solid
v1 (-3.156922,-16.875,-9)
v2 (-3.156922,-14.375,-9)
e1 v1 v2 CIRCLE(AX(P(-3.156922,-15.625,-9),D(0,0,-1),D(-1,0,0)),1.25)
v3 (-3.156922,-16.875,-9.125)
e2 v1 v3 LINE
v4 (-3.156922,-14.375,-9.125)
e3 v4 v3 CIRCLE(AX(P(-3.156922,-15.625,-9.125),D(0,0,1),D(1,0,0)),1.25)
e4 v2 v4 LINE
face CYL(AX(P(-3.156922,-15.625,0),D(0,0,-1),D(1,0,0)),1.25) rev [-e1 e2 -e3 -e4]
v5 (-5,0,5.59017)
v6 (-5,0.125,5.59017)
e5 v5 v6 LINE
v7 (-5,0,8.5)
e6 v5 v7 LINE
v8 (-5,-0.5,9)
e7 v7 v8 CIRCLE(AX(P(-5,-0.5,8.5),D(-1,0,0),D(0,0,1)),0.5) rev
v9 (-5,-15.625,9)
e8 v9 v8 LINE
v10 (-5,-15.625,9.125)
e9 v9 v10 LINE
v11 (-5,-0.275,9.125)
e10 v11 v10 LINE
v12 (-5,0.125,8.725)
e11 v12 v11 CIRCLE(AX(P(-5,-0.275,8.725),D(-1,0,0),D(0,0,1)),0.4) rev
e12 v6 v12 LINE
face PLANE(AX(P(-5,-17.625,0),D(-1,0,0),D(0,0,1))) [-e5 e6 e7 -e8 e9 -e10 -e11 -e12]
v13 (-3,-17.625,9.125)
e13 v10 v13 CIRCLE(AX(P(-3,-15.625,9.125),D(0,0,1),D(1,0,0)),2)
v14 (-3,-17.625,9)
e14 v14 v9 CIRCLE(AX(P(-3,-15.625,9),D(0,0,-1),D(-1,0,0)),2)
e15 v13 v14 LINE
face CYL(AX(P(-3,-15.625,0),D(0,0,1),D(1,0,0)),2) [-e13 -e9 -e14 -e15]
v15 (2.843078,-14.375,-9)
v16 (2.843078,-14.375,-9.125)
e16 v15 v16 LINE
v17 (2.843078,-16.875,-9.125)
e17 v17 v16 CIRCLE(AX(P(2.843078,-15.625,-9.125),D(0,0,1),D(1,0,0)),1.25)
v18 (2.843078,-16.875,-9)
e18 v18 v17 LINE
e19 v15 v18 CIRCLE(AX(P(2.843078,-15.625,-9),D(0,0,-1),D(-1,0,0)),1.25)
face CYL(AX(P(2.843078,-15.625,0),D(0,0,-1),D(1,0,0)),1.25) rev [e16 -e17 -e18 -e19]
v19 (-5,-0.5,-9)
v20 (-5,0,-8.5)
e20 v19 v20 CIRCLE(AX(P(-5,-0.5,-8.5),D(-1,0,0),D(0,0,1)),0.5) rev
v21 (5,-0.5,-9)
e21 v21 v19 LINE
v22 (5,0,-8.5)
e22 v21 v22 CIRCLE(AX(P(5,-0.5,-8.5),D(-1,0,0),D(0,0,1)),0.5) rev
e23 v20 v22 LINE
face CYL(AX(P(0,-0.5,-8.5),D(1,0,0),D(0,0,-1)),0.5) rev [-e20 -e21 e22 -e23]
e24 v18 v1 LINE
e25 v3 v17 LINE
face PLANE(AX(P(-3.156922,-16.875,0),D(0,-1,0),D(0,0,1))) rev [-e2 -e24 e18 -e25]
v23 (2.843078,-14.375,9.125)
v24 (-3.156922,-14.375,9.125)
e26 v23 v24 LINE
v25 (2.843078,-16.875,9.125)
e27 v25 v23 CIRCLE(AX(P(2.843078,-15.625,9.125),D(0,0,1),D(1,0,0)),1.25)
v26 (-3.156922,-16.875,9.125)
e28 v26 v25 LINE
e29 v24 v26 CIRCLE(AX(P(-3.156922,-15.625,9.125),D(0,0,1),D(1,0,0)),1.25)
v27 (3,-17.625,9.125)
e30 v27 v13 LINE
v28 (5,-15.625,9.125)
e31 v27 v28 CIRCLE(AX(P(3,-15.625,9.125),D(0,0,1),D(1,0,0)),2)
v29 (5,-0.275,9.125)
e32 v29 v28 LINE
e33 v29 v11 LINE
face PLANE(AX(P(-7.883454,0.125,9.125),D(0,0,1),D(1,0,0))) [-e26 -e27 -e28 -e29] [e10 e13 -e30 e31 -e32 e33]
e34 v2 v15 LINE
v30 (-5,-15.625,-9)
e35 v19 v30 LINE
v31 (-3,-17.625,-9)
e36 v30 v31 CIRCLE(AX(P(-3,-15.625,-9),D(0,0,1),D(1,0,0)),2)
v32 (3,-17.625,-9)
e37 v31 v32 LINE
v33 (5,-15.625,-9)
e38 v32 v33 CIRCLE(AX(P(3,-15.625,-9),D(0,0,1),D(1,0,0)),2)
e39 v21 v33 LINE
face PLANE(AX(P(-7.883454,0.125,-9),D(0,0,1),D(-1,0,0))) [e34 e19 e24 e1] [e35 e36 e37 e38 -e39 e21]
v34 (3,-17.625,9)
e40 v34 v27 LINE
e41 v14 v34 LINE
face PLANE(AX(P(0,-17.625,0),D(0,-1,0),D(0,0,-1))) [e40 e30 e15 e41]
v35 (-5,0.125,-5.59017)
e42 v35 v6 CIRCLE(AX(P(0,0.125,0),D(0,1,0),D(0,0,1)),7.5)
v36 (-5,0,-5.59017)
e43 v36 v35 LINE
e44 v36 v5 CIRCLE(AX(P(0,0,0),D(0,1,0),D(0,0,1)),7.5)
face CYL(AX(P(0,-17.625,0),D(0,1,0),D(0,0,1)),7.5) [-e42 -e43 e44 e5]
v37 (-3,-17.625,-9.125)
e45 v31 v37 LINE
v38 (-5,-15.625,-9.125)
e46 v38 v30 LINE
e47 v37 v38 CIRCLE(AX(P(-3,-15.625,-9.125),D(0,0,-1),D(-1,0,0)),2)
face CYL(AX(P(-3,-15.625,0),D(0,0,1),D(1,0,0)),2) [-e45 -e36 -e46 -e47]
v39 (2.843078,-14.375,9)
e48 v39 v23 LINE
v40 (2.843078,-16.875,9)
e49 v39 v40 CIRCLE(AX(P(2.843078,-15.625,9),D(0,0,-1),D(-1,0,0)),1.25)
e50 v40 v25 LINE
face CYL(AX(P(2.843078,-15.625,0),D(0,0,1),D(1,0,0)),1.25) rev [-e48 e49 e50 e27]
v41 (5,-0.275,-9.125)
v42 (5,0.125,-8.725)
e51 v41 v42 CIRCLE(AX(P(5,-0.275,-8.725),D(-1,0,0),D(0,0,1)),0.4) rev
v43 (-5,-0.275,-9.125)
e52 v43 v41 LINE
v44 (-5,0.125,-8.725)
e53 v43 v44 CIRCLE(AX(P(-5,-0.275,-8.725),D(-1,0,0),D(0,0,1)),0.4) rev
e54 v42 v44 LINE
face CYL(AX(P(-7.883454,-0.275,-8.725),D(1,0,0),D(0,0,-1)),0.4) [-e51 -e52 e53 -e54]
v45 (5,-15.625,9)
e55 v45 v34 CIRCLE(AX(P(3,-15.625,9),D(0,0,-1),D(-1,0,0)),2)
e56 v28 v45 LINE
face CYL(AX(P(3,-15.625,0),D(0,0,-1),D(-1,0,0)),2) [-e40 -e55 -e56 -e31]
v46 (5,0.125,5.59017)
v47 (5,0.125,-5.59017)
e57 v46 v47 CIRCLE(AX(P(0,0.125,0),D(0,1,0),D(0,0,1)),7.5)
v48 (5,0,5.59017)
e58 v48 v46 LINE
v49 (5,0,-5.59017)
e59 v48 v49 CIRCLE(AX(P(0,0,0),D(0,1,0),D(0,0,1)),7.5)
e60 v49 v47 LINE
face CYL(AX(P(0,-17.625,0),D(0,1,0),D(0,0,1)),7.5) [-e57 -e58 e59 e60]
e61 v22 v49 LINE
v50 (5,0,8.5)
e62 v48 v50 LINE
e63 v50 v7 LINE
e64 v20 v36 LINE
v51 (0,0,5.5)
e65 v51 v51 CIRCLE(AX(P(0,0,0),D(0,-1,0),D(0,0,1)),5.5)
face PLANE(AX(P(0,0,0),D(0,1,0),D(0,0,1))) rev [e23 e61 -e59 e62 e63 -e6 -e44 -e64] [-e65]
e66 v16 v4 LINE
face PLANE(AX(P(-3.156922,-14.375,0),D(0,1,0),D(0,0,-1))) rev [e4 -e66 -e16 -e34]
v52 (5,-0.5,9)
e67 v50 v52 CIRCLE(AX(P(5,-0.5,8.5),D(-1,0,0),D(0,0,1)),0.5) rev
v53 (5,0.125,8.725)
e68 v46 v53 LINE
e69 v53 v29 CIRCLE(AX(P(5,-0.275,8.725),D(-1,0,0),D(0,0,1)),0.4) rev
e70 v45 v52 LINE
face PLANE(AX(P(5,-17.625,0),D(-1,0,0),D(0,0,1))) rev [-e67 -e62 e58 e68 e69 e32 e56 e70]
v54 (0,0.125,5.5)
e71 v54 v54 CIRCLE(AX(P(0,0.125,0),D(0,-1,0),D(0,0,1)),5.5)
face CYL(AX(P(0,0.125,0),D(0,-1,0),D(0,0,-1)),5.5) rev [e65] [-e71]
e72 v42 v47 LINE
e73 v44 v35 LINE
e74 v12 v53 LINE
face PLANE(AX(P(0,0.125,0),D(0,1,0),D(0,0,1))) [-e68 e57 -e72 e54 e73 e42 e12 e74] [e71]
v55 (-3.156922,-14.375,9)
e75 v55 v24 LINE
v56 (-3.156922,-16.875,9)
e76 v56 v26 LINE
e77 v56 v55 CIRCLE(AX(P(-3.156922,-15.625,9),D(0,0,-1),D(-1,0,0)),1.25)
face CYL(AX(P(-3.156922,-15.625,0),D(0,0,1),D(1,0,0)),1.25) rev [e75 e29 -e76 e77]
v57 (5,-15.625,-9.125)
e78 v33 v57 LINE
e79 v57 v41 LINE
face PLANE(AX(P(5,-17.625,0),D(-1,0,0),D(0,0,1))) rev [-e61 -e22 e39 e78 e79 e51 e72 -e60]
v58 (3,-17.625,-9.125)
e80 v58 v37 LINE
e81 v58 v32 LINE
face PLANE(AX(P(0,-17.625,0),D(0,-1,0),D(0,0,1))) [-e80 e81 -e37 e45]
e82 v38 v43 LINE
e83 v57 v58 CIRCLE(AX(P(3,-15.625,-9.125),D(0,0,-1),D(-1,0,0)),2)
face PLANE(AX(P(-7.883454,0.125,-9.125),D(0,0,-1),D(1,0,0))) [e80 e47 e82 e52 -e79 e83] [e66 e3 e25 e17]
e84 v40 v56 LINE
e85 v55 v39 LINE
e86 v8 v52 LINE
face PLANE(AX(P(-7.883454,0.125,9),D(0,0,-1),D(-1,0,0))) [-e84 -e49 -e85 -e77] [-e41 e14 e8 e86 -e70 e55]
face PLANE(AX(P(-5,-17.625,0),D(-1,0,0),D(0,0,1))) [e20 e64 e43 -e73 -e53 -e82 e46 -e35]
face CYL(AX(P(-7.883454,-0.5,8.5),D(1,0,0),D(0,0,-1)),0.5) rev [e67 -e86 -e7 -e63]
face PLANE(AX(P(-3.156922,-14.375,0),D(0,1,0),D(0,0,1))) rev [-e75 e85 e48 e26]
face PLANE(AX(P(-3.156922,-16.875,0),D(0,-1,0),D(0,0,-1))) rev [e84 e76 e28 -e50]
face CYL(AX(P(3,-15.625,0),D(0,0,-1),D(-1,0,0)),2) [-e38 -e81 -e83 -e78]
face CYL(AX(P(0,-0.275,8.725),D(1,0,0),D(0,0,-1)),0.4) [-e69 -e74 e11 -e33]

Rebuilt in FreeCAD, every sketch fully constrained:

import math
import FreeCAD as App
import Part
import Sketcher
Q = App.Units.Quantity


def edges_at(feature, points):
    """Names of the edges that pass closest to the given points."""
    edges = feature.Shape.Edges
    near = lambda p: min(range(len(edges)), key=lambda i: edges[i].distToShape(Part.Vertex(*p))[0])
    return sorted({f"Edge{near(p) + 1}" for p in points})


def add_polygon(sketch, points):
    """Adds a closed chain of lines whose ends are joined by coincident constraints."""
    first, n = sketch.GeometryCount, len(points)
    for a, b in zip(points, points[1:] + points[:1]):
        sketch.addGeometry(Part.LineSegment(App.Vector(*a, 0), App.Vector(*b, 0)), False)
    for i in range(n):
        sketch.addConstraint(Sketcher.Constraint("Coincident", first + i, 2, first + (i + 1) % n, 1))

doc = App.newDocument("Part")
params = doc.addObject("Spreadsheet::Sheet", "Params")
for row, (alias, value) in enumerate([
    ("sketch1_radius", "5.5 mm"),
    ("sketch1_height", "9 mm"),
    ("pad1_length", "0.125 mm"),
    ("sketch2_width", "15.25 mm"),
    ("pad2_length", "15.766908 mm"),
    ("pad3_length", "2.5 mm"),
    ("sketch4_width", "6 mm"),
    ("sketch4_radius", "1.25 mm"),
    ("pocket1_length", "2.5 mm"),
    ("fillet_radius", "0.4 mm"),
    ("fillet2_radius", "0.5 mm"),
    ("fillet3_radius", "0.5 mm"),
    ("fillet4_radius", "2 mm"),
    ("fillet5_radius", "2 mm"),
    ("fillet6_radius", "0.4 mm"),
    ("sketch5_radius", "7.5 mm"),
    ("pocket2_length", "17.75 mm"),
    ("fillet7_radius", "2 mm"),
], start=1):
    params.set(f"A{row}", alias)
    params.set(f"B{row}", "=" + value)
    params.setAlias(f"B{row}", alias)

body = doc.addObject("PartDesign::Body", "Body")

sketch1 = body.newObject("Sketcher::SketchObject", "Sketch")
sketch1.AttachmentSupport = (doc.getObject("XZ_Plane"), [""])
sketch1.MapMode = "FlatFace"
sketch1.addGeometry([
    Part.LineSegment(App.Vector(-5.5, 0, 0), App.Vector(-7.9, 0, 0)),
    Part.LineSegment(App.Vector(-7.9, 0, 0), App.Vector(-7.9, 9, 0)),
    Part.LineSegment(App.Vector(-7.9, 9, 0), App.Vector(7.9, 9, 0)),
    Part.LineSegment(App.Vector(7.9, 9, 0), App.Vector(7.9, 0, 0)),
    Part.LineSegment(App.Vector(7.9, 0, 0), App.Vector(5.5, 0, 0)),
    Part.ArcOfCircle(Part.Circle(App.Vector(0, 0, 0), App.Vector(0, 0, 1), 5.5), math.radians(0), math.radians(180)),
], False)
sketch1.addConstraint([
    Sketcher.Constraint("Coincident", 0, 2, 1, 1),
    Sketcher.Constraint("Coincident", 1, 2, 2, 1),
    Sketcher.Constraint("Coincident", 2, 2, 3, 1),
    Sketcher.Constraint("Coincident", 3, 2, 4, 1),
    Sketcher.Constraint("Coincident", 4, 2, 5, 1),
    Sketcher.Constraint("Coincident", 5, 2, 0, 1),
    Sketcher.Constraint("Horizontal", 0),
    Sketcher.Constraint("Vertical", 1),
    Sketcher.Constraint("Horizontal", 2),
    Sketcher.Constraint("Vertical", 3),
    Sketcher.Constraint("Horizontal", 4),
    Sketcher.Constraint("Coincident", 5, 3, -1, 1),
    Sketcher.Constraint("Symmetric", 0, 2, 3, 2, -1, 1),
    Sketcher.Constraint("PointOnObject", 0, 2, -1),
    Sketcher.Constraint("Radius", 5, Q("5.5 mm")),
    Sketcher.Constraint("DistanceY", 1, 1, 1, 2, Q("9 mm")),
    Sketcher.Constraint("DistanceX", 0, 2, 0, 1, Q("2.383454 mm")),
])
sketch1.setExpression("Constraints[14]", "Params.sketch1_radius")
sketch1.setExpression("Constraints[15]", "Params.sketch1_height")
pad1 = body.newObject("PartDesign::Pad", "Pad")
pad1.Profile = sketch1
pad1.setExpression("Length", "Params.pad1_length")
pad1.Reversed = True

sketch2 = body.newObject("Sketcher::SketchObject", "Sketch001")
sketch2.AttachmentSupport = (doc.getObject("YZ_Plane"), [""])
sketch2.MapMode = "FlatFace"
sketch2.AttachmentOffset = App.Placement(App.Vector(0, 0, 7.883454), App.Rotation())
add_polygon(sketch2, [(0.12, 9.12), (-15.12, 9.12), (-15.12, 9), (0.12, 9)])
sketch2.addConstraint([
    Sketcher.Constraint("Horizontal", 0),
    Sketcher.Constraint("Vertical", 1),
    Sketcher.Constraint("Horizontal", 2),
    Sketcher.Constraint("Vertical", 3),
    Sketcher.Constraint("DistanceY", -1, 1, 1, 2, Q("9 mm")),
    Sketcher.Constraint("DistanceX", 0, 2, 0, 1, Q("15.25 mm")),
    Sketcher.Constraint("DistanceY", 1, 2, 1, 1, Q("0.125 mm")),
    Sketcher.Constraint("DistanceX", 0, 2, -1, 1, Q("15.125 mm")),
])
sketch2.setExpression("Constraints[9]", "Params.sketch2_width")
pad2 = body.newObject("PartDesign::Pad", "Pad001")
pad2.Profile = sketch2
pad2.setExpression("Length", "Params.pad2_length")
pad2.Reversed = True

sketch3 = body.newObject("Sketcher::SketchObject", "Sketch002")
sketch3.AttachmentSupport = (doc.getObject("XZ_Plane"), [""])
sketch3.MapMode = "FlatFace"
sketch3.AttachmentOffset = App.Placement(App.Vector(0, 0, 15.125), App.Rotation())
add_polygon(sketch3, [(-7.88, 9.12), (-7.88, 9), (7.88, 9), (7.88, 9.12)])
sketch3.addConstraint([
    Sketcher.Constraint("Vertical", 0),
    Sketcher.Constraint("Horizontal", 1),
    Sketcher.Constraint("Vertical", 2),
    Sketcher.Constraint("Horizontal", 3),
    Sketcher.Constraint("DistanceY", -1, 1, 0, 2, Q("9 mm")),
    Sketcher.Constraint("DistanceY", 0, 2, 0, 1, Q("0.125 mm")),
    Sketcher.Constraint("DistanceX", 1, 1, 1, 2, Q("15.766908 mm")),
    Sketcher.Constraint("DistanceX", 0, 2, -1, 1, Q("7.883454 mm")),
])
pad3 = body.newObject("PartDesign::Pad", "Pad002")
pad3.Profile = sketch3
pad3.setExpression("Length", "Params.pad3_length")

sketch4 = body.newObject("Sketcher::SketchObject", "Sketch003")
sketch4.AttachmentSupport = (doc.getObject("XY_Plane"), [""])
sketch4.MapMode = "FlatFace"
sketch4.AttachmentOffset = App.Placement(App.Vector(0, 0, 9.125), App.Rotation())
sketch4.addGeometry([
    Part.LineSegment(App.Vector(2.8, -14.4, 0), App.Vector(-3.2, -14.4, 0)),
    Part.ArcOfCircle(Part.Circle(App.Vector(-3.2, -15.6, 0), App.Vector(0, 0, 1), 1.2), math.radians(90), math.radians(270)),
    Part.LineSegment(App.Vector(-3.2, -16.9, 0), App.Vector(2.8, -16.9, 0)),
    Part.ArcOfCircle(Part.Circle(App.Vector(2.8, -15.6, 0), App.Vector(0, 0, 1), 1.2), math.radians(-90), math.radians(90)),
], False)
sketch4.addConstraint([
    Sketcher.Constraint("Tangent", 0, 2, 1, 1),
    Sketcher.Constraint("Tangent", 1, 2, 2, 1),
    Sketcher.Constraint("Tangent", 2, 2, 3, 1),
    Sketcher.Constraint("Tangent", 3, 2, 0, 1),
    Sketcher.Constraint("Horizontal", 0),
    Sketcher.Constraint("Horizontal", 2),
    Sketcher.Constraint("DistanceX", 0, 2, 0, 1, Q("6 mm")),
    Sketcher.Constraint("Radius", 1, Q("1.25 mm")),
    Sketcher.Constraint("DistanceY", 1, 3, -1, 1, Q("15.625 mm")),
    Sketcher.Constraint("DistanceX", 1, 3, -1, 1, Q("3.156922 mm")),
])
sketch4.setExpression("Constraints[6]", "Params.sketch4_width")
sketch4.setExpression("Constraints[7]", "Params.sketch4_radius")
pocket1 = body.newObject("PartDesign::Pocket", "Pocket")
pocket1.Profile = sketch4
pocket1.setExpression("Length", "Params.pocket1_length")
body2 = doc.addObject("PartDesign::Body", "Body001")
doc.recompute()

body2.BaseFeature = body
doc.recompute()

mirroring = doc.addObject("Part::Mirroring", "Mirroring")
mirroring.Source = body
mirroring.Base = App.Vector(5.5, 0.125, 0)
mirroring.Normal = App.Vector(0, 0, 1)
body3 = doc.addObject("PartDesign::Body", "Body002")
body3.BaseFeature = mirroring
boolean = body2.newObject("PartDesign::Boolean", "Boolean")
boolean.Type = "Fuse"
boolean.addObjects([body3])
doc.recompute()

fillet = body2.newObject("PartDesign::Fillet", "Fillet")
fillet.Base = (boolean, edges_at(boolean, [(0, 0.125, 9.125)]))
fillet.setExpression("Radius", "Params.fillet_radius")
doc.recompute()

fillet2 = body2.newObject("PartDesign::Fillet", "Fillet001")
fillet2.Base = (fillet, edges_at(fillet, [(0, 0, 9)]))
fillet2.setExpression("Radius", "Params.fillet2_radius")
doc.recompute()

fillet3 = body2.newObject("PartDesign::Fillet", "Fillet002")
fillet3.Base = (fillet2, edges_at(fillet2, [(0, 0, -9)]))
fillet3.setExpression("Radius", "Params.fillet3_radius")
doc.recompute()

fillet4 = body2.newObject("PartDesign::Fillet", "Fillet003")
fillet4.Base = (fillet3, edges_at(fillet3, [(7.883, -17.625, 9.062), (-7.883, -17.625, 9.062)]))
fillet4.setExpression("Radius", "Params.fillet4_radius")
doc.recompute()

fillet5 = body2.newObject("PartDesign::Fillet", "Fillet004")
fillet5.Base = (fillet4, edges_at(fillet4, [(7.883, -17.625, -9.062), (-7.883, -17.625, -9.062)]))
fillet5.setExpression("Radius", "Params.fillet5_radius")
doc.recompute()

fillet6 = body2.newObject("PartDesign::Fillet", "Fillet005")
fillet6.Base = (fillet5, edges_at(fillet5, [(0, 0.125, -9.125)]))
fillet6.setExpression("Radius", "Params.fillet6_radius")

sketch5 = body2.newObject("Sketcher::SketchObject", "Sketch004")
sketch5.AttachmentSupport = (doc.getObject("XZ_Plane001"), [""])
sketch5.MapMode = "FlatFace"
sketch5.AttachmentOffset = App.Placement(App.Vector(0, 0, 17.625), App.Rotation())
sketch5.addGeometry([
    Part.LineSegment(App.Vector(5, 13, 0), App.Vector(11, 13, 0)),
    Part.LineSegment(App.Vector(11, 13, 0), App.Vector(11, -15, 0)),
    Part.LineSegment(App.Vector(11, -15, 0), App.Vector(5, -15, 0)),
    Part.LineSegment(App.Vector(5, -15, 0), App.Vector(5, -6, 0)),
    Part.ArcOfCircle(Part.Circle(App.Vector(0, 0, 0), App.Vector(0, 0, 1), 8), math.radians(-48), math.radians(0)),
    Part.ArcOfCircle(Part.Circle(App.Vector(0, 0, 0), App.Vector(0, 0, 1), 8), math.radians(0), math.radians(48)),
    Part.LineSegment(App.Vector(5, 6, 0), App.Vector(5, 13, 0)),
    Part.LineSegment(App.Vector(-5, 13, 0), App.Vector(-5, 6, 0)),
    Part.ArcOfCircle(Part.Circle(App.Vector(0, 0, 0), App.Vector(0, 0, 1), 8), math.radians(132), math.radians(228)),
    Part.LineSegment(App.Vector(-5, -6, 0), App.Vector(-5, -15, 0)),
    Part.LineSegment(App.Vector(-5, -15, 0), App.Vector(-11, -15, 0)),
    Part.LineSegment(App.Vector(-11, -15, 0), App.Vector(-11, 13, 0)),
    Part.LineSegment(App.Vector(-11, 13, 0), App.Vector(-5, 13, 0)),
], False)
sketch5.addConstraint([
    Sketcher.Constraint("Coincident", 0, 2, 1, 1),
    Sketcher.Constraint("Coincident", 1, 2, 2, 1),
    Sketcher.Constraint("Coincident", 2, 2, 3, 1),
    Sketcher.Constraint("Coincident", 3, 2, 4, 1),
    Sketcher.Constraint("Tangent", 4, 2, 5, 1),
    Sketcher.Constraint("Coincident", 5, 2, 6, 1),
    Sketcher.Constraint("Coincident", 6, 2, 0, 1),
    Sketcher.Constraint("Coincident", 7, 2, 8, 1),
    Sketcher.Constraint("Coincident", 8, 2, 9, 1),
    Sketcher.Constraint("Coincident", 9, 2, 10, 1),
    Sketcher.Constraint("Coincident", 10, 2, 11, 1),
    Sketcher.Constraint("Coincident", 11, 2, 12, 1),
    Sketcher.Constraint("Coincident", 12, 2, 7, 1),
    Sketcher.Constraint("Horizontal", 0),
    Sketcher.Constraint("Vertical", 1),
    Sketcher.Constraint("Horizontal", 2),
    Sketcher.Constraint("Vertical", 3),
    Sketcher.Constraint("Vertical", 6),
    Sketcher.Constraint("Vertical", 7),
    Sketcher.Constraint("Vertical", 9),
    Sketcher.Constraint("Horizontal", 10),
    Sketcher.Constraint("Vertical", 11),
    Sketcher.Constraint("Horizontal", 12),
    Sketcher.Constraint("Coincident", 4, 3, -1, 1),
    Sketcher.Constraint("Coincident", 8, 3, -1, 1),
    Sketcher.Constraint("Equal", 4, 5),
    Sketcher.Constraint("Equal", 5, 8),
    Sketcher.Constraint("Symmetric", 2, 2, 9, 2, -2),
    Sketcher.Constraint("Symmetric", 0, 2, 11, 2, -2),
    Sketcher.Constraint("PointOnObject", 4, 2, -1),
    Sketcher.Constraint("Horizontal", 5, 2, 7, 2),
    Sketcher.Constraint("Vertical", 3, 2, 5, 2),
    Sketcher.Constraint("Radius", 4, Q("7.5 mm")),
    Sketcher.Constraint("DistanceX", -1, 1, 2, 2, Q("5 mm")),
    Sketcher.Constraint("DistanceX", 0, 1, 0, 2, Q("6.097111 mm")),
    Sketcher.Constraint("DistanceY", 6, 1, 6, 2, Q("7.58473 mm")),
    Sketcher.Constraint("DistanceY", 1, 2, 1, 1, Q("28.291505 mm")),
])
sketch5.setExpression("Constraints[32]", "Params.sketch5_radius")
pocket2 = body2.newObject("PartDesign::Pocket", "Pocket001")
pocket2.Profile = sketch5
pocket2.setExpression("Length", "Params.pocket2_length")
doc.recompute()

fillet7 = body2.newObject("PartDesign::Fillet", "Fillet006")
fillet7.Base = (pocket2, edges_at(pocket2, [
    (5, -17.625, 9.062),
    (5, -17.625, -9.062),
    (-5, -17.625, 9.062),
    (-5, -17.625, -9.062),
]))
fillet7.setExpression("Radius", "Params.fillet7_radius")
mirroring.Visibility = False

doc.recompute()
